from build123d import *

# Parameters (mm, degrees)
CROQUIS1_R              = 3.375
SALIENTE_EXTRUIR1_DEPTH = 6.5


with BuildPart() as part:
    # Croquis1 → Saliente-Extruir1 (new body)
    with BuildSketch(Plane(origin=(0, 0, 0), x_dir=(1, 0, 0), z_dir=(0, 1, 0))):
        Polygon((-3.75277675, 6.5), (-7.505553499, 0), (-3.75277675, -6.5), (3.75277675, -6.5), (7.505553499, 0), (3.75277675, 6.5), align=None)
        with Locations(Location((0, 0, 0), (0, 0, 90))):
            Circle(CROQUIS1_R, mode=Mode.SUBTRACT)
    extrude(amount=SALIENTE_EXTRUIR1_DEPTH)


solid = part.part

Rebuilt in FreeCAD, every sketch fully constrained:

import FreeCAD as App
import Part
import Sketcher

V = App.Vector
Q = App.Units.Quantity

doc = App.newDocument("Part")
body = doc.addObject("PartDesign::Body", "Body")

# Sketch on XZ plane
sketch1 = body.newObject("Sketcher::SketchObject", "Sketch")
sketch1.AttachmentSupport = (doc.getObject("XZ_Plane"), [""])
sketch1.MapMode = "FlatFace"
sketch1.addGeometry([
    Part.LineSegment(V(-3.8, -6.5, 0), V(-7.5, 0, 0)),  # 0
    Part.LineSegment(V(-7.5, 0, 0), V(-3.8, 6.5, 0)),  # 1
    Part.LineSegment(V(-3.8, 6.5, 0), V(3.8, 6.5, 0)),  # 2
    Part.LineSegment(V(3.8, 6.5, 0), V(7.5, 0, 0)),  # 3
    Part.LineSegment(V(7.5, 0, 0), V(3.8, -6.5, 0)),  # 4
    Part.LineSegment(V(3.8, -6.5, 0), V(-3.8, -6.5, 0)),  # 5
    Part.Circle(V(0, 0, 0), V(0, 0, 1), 3.4),  # 6
], False)
sketch1.addConstraint([
    Sketcher.Constraint("Coincident", 0, 2, 1, 1),
    Sketcher.Constraint("Coincident", 1, 2, 2, 1),
    Sketcher.Constraint("Coincident", 2, 2, 3, 1),
    Sketcher.Constraint("Coincident", 3, 2, 4, 1),
    Sketcher.Constraint("Coincident", 4, 2, 5, 1),
    Sketcher.Constraint("Coincident", 5, 2, 0, 1),
    Sketcher.Constraint("Horizontal", 2),
    Sketcher.Constraint("Horizontal", 5),
    Sketcher.Constraint("Coincident", 6, 3, -1, 1),
    Sketcher.Constraint("Symmetric", 0, 2, 3, 2, -1, 1),
    Sketcher.Constraint("Symmetric", 1, 2, 4, 2, -1, 1),
    Sketcher.Constraint("PointOnObject", 0, 2, -1),
    Sketcher.Constraint("Parallel", 0, 3),
    Sketcher.Constraint("Vertical", 2, 2, 4, 2),
    Sketcher.Constraint("Diameter", 6, 6.75),
    Sketcher.Constraint("Angle", 0, Q("120 deg")),
    Sketcher.Constraint("DistanceY", 4, 2, 2, 2, 13.0),
    Sketcher.Constraint("DistanceX", 2, 1, 2, 2, 7.505554),
])
pad1 = body.newObject("PartDesign::Pad", "Pad")
pad1.Profile = sketch1
pad1.Length = 6.5
pad1.Reversed = True

doc.recompute()
